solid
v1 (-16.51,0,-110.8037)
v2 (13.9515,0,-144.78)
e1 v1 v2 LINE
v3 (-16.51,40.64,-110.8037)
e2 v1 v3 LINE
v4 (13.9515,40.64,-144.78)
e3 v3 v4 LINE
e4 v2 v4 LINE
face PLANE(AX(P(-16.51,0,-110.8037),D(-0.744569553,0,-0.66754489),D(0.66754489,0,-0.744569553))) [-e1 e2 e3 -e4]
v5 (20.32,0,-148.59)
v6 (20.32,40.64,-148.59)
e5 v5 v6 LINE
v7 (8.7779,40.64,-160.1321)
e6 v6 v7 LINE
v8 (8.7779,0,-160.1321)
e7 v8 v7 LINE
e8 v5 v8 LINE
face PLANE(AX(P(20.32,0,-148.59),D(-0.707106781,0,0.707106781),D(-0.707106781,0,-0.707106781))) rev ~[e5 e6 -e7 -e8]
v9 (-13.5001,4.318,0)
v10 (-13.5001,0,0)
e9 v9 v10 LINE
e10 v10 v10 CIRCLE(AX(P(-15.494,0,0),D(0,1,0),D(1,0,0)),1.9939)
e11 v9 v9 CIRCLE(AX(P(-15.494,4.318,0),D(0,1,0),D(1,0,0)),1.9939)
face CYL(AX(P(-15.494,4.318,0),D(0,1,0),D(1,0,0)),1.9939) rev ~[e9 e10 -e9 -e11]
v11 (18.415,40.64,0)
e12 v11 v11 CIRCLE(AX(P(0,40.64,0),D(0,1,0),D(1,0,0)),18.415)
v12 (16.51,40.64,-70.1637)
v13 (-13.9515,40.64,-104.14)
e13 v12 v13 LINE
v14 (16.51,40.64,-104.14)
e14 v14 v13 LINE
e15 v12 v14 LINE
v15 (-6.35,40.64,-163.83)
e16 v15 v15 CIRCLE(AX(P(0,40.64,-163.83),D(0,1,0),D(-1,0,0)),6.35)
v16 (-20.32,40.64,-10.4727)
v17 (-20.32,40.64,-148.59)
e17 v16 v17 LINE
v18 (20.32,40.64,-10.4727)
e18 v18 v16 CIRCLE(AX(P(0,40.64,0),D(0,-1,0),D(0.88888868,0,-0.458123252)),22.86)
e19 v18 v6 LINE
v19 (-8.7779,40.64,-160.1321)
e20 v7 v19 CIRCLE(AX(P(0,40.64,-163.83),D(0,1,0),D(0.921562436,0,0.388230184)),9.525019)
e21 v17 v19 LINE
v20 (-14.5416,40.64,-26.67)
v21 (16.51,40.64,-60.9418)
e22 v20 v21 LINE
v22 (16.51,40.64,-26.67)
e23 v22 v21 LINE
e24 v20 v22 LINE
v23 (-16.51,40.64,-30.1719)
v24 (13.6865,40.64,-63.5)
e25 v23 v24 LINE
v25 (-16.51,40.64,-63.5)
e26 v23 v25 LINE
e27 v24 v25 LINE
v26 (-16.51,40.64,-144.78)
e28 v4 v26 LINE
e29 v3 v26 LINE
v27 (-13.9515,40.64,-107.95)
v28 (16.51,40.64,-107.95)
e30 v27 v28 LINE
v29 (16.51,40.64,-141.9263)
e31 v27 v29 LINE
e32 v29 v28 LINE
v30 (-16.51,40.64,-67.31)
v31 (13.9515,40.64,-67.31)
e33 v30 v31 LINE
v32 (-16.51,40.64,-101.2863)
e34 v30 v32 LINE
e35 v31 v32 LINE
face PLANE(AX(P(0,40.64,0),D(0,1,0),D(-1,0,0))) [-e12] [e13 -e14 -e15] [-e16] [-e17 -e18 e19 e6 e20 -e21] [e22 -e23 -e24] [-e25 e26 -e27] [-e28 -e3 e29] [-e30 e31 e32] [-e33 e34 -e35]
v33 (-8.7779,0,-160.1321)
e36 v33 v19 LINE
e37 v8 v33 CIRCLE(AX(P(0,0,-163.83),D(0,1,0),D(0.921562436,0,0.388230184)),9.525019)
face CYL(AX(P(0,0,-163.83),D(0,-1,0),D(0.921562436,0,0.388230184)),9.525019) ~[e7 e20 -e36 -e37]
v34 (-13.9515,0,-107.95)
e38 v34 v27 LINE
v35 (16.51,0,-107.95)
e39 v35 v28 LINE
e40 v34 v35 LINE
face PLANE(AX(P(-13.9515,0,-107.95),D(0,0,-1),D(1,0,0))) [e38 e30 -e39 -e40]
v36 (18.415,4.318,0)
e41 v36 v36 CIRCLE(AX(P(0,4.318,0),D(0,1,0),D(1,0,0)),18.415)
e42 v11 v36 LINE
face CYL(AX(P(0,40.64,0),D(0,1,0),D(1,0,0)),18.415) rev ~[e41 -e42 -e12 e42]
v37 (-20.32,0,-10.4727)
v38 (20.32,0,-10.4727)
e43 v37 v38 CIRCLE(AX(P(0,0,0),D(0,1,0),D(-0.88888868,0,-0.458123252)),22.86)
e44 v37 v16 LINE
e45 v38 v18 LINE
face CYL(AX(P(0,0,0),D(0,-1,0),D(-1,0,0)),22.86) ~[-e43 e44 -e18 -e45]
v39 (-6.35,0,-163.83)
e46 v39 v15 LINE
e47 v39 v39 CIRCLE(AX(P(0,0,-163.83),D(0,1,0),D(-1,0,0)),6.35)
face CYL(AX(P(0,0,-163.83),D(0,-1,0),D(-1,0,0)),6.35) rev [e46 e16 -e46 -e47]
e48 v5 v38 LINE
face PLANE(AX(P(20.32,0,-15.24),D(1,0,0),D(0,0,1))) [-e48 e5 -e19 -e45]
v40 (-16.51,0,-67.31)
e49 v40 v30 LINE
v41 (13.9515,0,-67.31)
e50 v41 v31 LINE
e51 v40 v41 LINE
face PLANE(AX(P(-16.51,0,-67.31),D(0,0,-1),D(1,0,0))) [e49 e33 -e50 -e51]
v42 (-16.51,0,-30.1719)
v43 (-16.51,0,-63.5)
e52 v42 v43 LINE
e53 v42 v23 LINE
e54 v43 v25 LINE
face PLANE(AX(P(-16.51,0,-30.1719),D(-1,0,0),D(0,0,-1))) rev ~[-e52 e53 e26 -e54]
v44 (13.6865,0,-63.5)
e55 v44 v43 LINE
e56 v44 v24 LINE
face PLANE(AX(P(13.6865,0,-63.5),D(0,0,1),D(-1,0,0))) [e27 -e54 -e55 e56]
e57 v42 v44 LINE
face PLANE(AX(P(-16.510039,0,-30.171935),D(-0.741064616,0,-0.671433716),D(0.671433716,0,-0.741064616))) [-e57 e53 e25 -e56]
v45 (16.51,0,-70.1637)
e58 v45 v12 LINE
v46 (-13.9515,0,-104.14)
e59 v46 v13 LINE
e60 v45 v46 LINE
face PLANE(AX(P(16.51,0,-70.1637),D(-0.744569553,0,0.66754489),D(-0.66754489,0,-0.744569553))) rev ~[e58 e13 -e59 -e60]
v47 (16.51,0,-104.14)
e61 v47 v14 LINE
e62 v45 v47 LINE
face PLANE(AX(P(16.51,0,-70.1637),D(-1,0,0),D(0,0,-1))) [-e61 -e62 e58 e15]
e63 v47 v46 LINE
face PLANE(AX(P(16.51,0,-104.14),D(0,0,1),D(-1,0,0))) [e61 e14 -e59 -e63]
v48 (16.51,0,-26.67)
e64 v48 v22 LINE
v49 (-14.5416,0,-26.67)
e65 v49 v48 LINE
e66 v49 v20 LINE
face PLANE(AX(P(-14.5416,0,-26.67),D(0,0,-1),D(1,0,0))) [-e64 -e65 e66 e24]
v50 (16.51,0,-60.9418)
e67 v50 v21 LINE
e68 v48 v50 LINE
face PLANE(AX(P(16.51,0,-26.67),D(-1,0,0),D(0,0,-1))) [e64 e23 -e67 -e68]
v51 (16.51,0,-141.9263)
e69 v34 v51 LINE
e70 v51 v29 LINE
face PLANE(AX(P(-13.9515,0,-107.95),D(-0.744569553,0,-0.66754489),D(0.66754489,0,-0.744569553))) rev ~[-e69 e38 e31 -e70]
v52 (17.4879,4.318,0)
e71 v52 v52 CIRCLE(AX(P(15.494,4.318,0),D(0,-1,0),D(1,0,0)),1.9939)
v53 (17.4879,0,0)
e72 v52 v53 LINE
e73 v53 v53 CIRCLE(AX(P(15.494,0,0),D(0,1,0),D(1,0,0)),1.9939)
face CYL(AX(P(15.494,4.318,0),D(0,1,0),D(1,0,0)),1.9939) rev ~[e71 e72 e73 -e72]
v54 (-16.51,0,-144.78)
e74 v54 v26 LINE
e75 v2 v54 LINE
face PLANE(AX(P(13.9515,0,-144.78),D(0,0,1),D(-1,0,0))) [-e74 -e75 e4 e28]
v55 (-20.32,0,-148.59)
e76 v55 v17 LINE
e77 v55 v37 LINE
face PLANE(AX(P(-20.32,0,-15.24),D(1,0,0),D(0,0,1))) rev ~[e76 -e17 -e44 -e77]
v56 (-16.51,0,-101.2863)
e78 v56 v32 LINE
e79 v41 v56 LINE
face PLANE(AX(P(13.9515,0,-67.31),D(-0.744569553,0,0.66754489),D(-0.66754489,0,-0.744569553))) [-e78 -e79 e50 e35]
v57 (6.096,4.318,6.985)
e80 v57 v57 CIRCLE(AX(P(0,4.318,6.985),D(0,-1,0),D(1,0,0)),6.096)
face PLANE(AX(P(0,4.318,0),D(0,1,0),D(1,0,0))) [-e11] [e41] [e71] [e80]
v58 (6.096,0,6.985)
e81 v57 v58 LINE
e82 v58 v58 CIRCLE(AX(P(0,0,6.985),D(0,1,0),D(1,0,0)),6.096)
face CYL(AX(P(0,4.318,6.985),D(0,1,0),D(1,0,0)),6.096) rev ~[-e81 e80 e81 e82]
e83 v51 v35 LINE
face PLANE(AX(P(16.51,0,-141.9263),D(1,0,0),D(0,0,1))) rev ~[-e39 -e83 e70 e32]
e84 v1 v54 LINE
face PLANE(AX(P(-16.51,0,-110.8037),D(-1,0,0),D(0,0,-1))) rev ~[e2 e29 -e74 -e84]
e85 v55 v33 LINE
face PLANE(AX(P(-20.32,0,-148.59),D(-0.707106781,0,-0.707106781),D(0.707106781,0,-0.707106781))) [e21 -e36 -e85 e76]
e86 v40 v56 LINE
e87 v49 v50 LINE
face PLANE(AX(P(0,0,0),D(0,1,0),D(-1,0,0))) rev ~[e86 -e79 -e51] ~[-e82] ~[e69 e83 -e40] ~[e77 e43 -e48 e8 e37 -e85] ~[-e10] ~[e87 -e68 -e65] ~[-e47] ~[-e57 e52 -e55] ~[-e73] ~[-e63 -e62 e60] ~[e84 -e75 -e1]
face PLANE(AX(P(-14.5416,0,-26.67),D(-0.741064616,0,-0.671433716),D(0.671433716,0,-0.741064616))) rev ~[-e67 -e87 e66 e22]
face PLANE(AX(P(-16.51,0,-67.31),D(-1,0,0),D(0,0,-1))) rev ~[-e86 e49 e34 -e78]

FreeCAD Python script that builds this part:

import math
import FreeCAD as App
import Part
import Sketcher
Q = App.Units.Quantity


def add_polygon(sketch, points):
    """Adds a closed chain of lines whose ends are joined by coincident constraints."""
    first, n = sketch.GeometryCount, len(points)
    for a, b in zip(points, points[1:] + points[:1]):
        sketch.addGeometry(Part.LineSegment(App.Vector(*a, 0), App.Vector(*b, 0)), False)
    for i in range(n):
        sketch.addConstraint(Sketcher.Constraint("Coincident", first + i, 2, first + (i + 1) % n, 1))

doc = App.newDocument("Part")
params = doc.addObject("Spreadsheet::Sheet", "Params")
for row, (alias, value) in enumerate([
    ("sketch1_diameter", "0.5 in"),
    ("sketch1_radius", "0.9 in"),
    ("sketch1_radius2", "0.375 in"),
    ("pad1_length", "1.6 in"),
    ("sketch2_diameter", "1.45 in"),
    ("pocket1_length", "1.43 in"),
    ("sketch3_diameter", "0.48 in"),
    ("sketch3_diameter2", "0.157 in"),
    ("pocket2_length", "1.43 in"),
], start=1):
    params.set(f"A{row}", alias)
    params.set(f"B{row}", "=" + value)
    params.setAlias(f"B{row}", alias)

body = doc.addObject("PartDesign::Body", "Body")

# Sketch on XZ plane
sketch1 = doc.addObject("Sketcher::SketchObject", "Sketch")
body.addObject(sketch1)
sketch1.AttachmentSupport = (doc.XZ_Plane, [""])
sketch1.MapMode = "FlatFace"
sketch1.addGeometry(Part.ArcOfCircle(Part.Circle(App.Vector(0, 0, 0), App.Vector(0, 0, 1), 23), math.radians(-27), math.radians(207)), False)  # 0
sketch1.addGeometry(Part.LineSegment(App.Vector(20, -10, 0), App.Vector(20, -149, 0)), False)  # 1
sketch1.addGeometry(Part.LineSegment(App.Vector(20, -149, 0), App.Vector(9, -160, 0)), False)  # 2
sketch1.addGeometry(Part.ArcOfCircle(Part.Circle(App.Vector(0, -164, 0), App.Vector(0, 0, 1), 10), math.radians(157), math.radians(383)), False)  # 3
sketch1.addGeometry(Part.LineSegment(App.Vector(-9, -160, 0), App.Vector(-20, -149, 0)), False)  # 4
sketch1.addGeometry(Part.LineSegment(App.Vector(-20, -149, 0), App.Vector(-20, -10, 0)), False)  # 5
add_polygon(sketch1, [(17, -108), (-14, -108), (17, -142)])  # lines 6-8
add_polygon(sketch1, [(17, -104), (17, -70), (-14, -104)])  # lines 9-11
sketch1.addGeometry(Part.Circle(App.Vector(0, -164, 0), App.Vector(0, 0, 1), 6), False)  # 12
add_polygon(sketch1, [(14, -145), (-17, -111), (-17, -145)])  # lines 13-15
add_polygon(sketch1, [(14, -67), (-17, -67), (-17, -101)])  # lines 16-18
add_polygon(sketch1, [(17, -27), (-15, -27), (17, -61)])  # lines 19-21
add_polygon(sketch1, [(-17, -64), (14, -64), (-17, -30)])  # lines 22-24
sketch1.addConstraint(Sketcher.Constraint("Coincident", 0, 1, 1, 1))
sketch1.addConstraint(Sketcher.Constraint("Coincident", 1, 2, 2, 1))
sketch1.addConstraint(Sketcher.Constraint("Coincident", 2, 2, 3, 2))
sketch1.addConstraint(Sketcher.Constraint("Coincident", 3, 1, 4, 1))
sketch1.addConstraint(Sketcher.Constraint("Coincident", 4, 2, 5, 1))
sketch1.addConstraint(Sketcher.Constraint("Coincident", 5, 2, 0, 2))
sketch1.addConstraint(Sketcher.Constraint("Vertical", 1))
sketch1.addConstraint(Sketcher.Constraint("Vertical", 5))
sketch1.addConstraint(Sketcher.Constraint("Horizontal", 6))
sketch1.addConstraint(Sketcher.Constraint("Vertical", 8))
sketch1.addConstraint(Sketcher.Constraint("Vertical", 9))
sketch1.addConstraint(Sketcher.Constraint("Horizontal", 11))
sketch1.addConstraint(Sketcher.Constraint("Vertical", 14))
sketch1.addConstraint(Sketcher.Constraint("Horizontal", 15))
sketch1.addConstraint(Sketcher.Constraint("Horizontal", 16))
sketch1.addConstraint(Sketcher.Constraint("Vertical", 17))
sketch1.addConstraint(Sketcher.Constraint("Horizontal", 19))
sketch1.addConstraint(Sketcher.Constraint("Vertical", 21))
sketch1.addConstraint(Sketcher.Constraint("Horizontal", 22))
sketch1.addConstraint(Sketcher.Constraint("Vertical", 24))
sketch1.addConstraint(Sketcher.Constraint("Coincident", 0, 3, -1, 1))
sketch1.addConstraint(Sketcher.Constraint("Coincident", 12, 3, 3, 3))
sketch1.addConstraint(Sketcher.Constraint("Symmetric", 2, 2, 3, 1, -2))
sketch1.addConstraint(Sketcher.Constraint("Symmetric", 1, 2, 4, 2, -2))
sketch1.addConstraint(Sketcher.Constraint("Perpendicular", 2, 4))
sketch1.addConstraint(Sketcher.Constraint("Parallel", 7, 13))
sketch1.addConstraint(Sketcher.Constraint("Parallel", 10, 18))
sketch1.addConstraint(Sketcher.Constraint("Parallel", 20, 23))
sketch1.addConstraint(Sketcher.Constraint("Vertical", 8, 2, 9, 2))
sketch1.addConstraint(Sketcher.Constraint("Vertical", 6, 2, 10, 2))
sketch1.addConstraint(Sketcher.Constraint("Vertical", 14, 2, 16, 2))
sketch1.addConstraint(Sketcher.Constraint("Vertical", 15, 2, 18, 2))
sketch1.addConstraint(Sketcher.Constraint("Vertical", 11, 2, 20, 2))
sketch1.addConstraint(Sketcher.Constraint("Vertical", 17, 2, 23, 2))
sketch1.addConstraint(Sketcher.Constraint("Equal", 11, 15))
sketch1.addConstraint(Sketcher.Constraint("Equal", 8, 9))
sketch1.addConstraint(Sketcher.Constraint("Diameter", 12, Q("0.5 in")))
sketch1.addConstraint(Sketcher.Constraint("Radius", 0, Q("0.9 in")))
sketch1.addConstraint(Sketcher.Constraint("Radius", 3, Q("0.375 in")))
sketch1.addConstraint(Sketcher.Constraint("DistanceX", -1, 1, 0, 1, Q("0.8 in")))
sketch1.addConstraint(Sketcher.Constraint("DistanceY", 4, 2, 6, 2, Q("1.6 in")))
sketch1.addConstraint(Sketcher.Constraint("DistanceY", 6, 2, 16, 2, Q("1.6 in")))
sketch1.addConstraint(Sketcher.Constraint("DistanceY", 16, 2, 19, 2, Q("1.6 in")))
sketch1.addConstraint(Sketcher.Constraint("DistanceY", 19, 2, -1, 1, Q("1.05 in")))
sketch1.addConstraint(Sketcher.Constraint("DistanceX", 7, 2, 1, 2, Q("0.15 in")))
sketch1.addConstraint(Sketcher.Constraint("DistanceY", 6, 2, 10, 2, Q("0.15 in")))
sketch1.addConstraint(Sketcher.Constraint("DistanceX", 4, 2, 13, 2, Q("0.15 in")))
sketch1.addConstraint(Sketcher.Constraint("DistanceY", 4, 2, 14, 2, Q("0.15 in")))
sketch1.addConstraint(Sketcher.Constraint("DistanceY", 3, 3, 14, 2, Q("0.75 in")))
sketch1.addConstraint(Sketcher.Constraint("DistanceY", 18, 2, 22, 2, Q("0.15 in")))
sketch1.addConstraint(Sketcher.Constraint("DistanceX", 19, 2, 19, 1, Q("1.2225 in")))
sketch1.addConstraint(Sketcher.Constraint("Distance", 23, Q("1.7706 in")))
sketch1.addConstraint(Sketcher.Constraint("DistanceX", 6, 2, 6, 1, Q("30.4615 mm")))
sketch1.addConstraint(Sketcher.Constraint("DistanceX", 22, 1, 22, 2, Q("30.1965 mm")))
sketch1.addConstraint(Sketcher.Constraint("DistanceY", 8, 1, 8, 2, Q("33.9763 mm")))
sketch1.setExpression("Constraints[54]", "Params.sketch1_diameter")
sketch1.setExpression("Constraints[55]", "Params.sketch1_radius")
sketch1.setExpression("Constraints[56]", "Params.sketch1_radius2")
pad1 = doc.addObject("PartDesign::Pad", "Pad")
body.addObject(pad1)
pad1.Profile = sketch1
pad1.setExpression("Length", "Params.pad1_length")
pad1.Reversed = True

# Sketch on XZ plane
sketch2 = doc.addObject("Sketcher::SketchObject", "Sketch001")
body.addObject(sketch2)
sketch2.AttachmentSupport = (doc.XZ_Plane, [""])
sketch2.MapMode = "FlatFace"
sketch2.AttachmentOffset = App.Placement(App.Vector(0, 0, -1.6 * 25.4), App.Rotation())
sketch2.addGeometry(Part.Circle(App.Vector(0, 0, 0), App.Vector(0, 0, 1), 18), False)
sketch2.addConstraint(Sketcher.Constraint("Coincident", 0, 3, -1, 1))
sketch2.addConstraint(Sketcher.Constraint("Diameter", 0, Q("1.45 in")))
sketch2.setExpression("Constraints[1]", "Params.sketch2_diameter")
pocket1 = doc.addObject("PartDesign::Pocket", "Pocket")
body.addObject(pocket1)
pocket1.Profile = sketch2
pocket1.setExpression("Length", "Params.pocket1_length")
pocket1.Reversed = True

# Sketch on XZ plane
sketch3 = doc.addObject("Sketcher::SketchObject", "Sketch002")
body.addObject(sketch3)
sketch3.AttachmentSupport = (doc.XZ_Plane, [""])
sketch3.MapMode = "FlatFace"
sketch3.AttachmentOffset = App.Placement(App.Vector(0, 0, -0.17 * 25.4), App.Rotation())
sketch3.addGeometry(Part.Circle(App.Vector(0, 7, 0), App.Vector(0, 0, 1), 6.1), False)
sketch3.addGeometry(Part.Circle(App.Vector(-15.5, 0, 0), App.Vector(0, 0, 1), 2), False)
sketch3.addGeometry(Part.Circle(App.Vector(15.5, 0, 0), App.Vector(0, 0, 1), 2), False)
sketch3.addConstraint(Sketcher.Constraint("Equal", 1, 2))
sketch3.addConstraint(Sketcher.Constraint("Symmetric", 1, 3, 2, 3, -1, 1))
sketch3.addConstraint(Sketcher.Constraint("PointOnObject", 0, 3, -2))
sketch3.addConstraint(Sketcher.Constraint("PointOnObject", 1, 3, -1))
sketch3.addConstraint(Sketcher.Constraint("Diameter", 0, Q("0.48 in")))
sketch3.addConstraint(Sketcher.Constraint("Diameter", 1, Q("0.157 in")))
sketch3.addConstraint(Sketcher.Constraint("DistanceX", 1, 3, -1, 1, Q("0.61 in")))
sketch3.addConstraint(Sketcher.Constraint("DistanceY", -1, 1, 0, 3, Q("0.275 in")))
sketch3.setExpression("Constraints[4]", "Params.sketch3_diameter")
sketch3.setExpression("Constraints[5]", "Params.sketch3_diameter2")
pocket2 = doc.addObject("PartDesign::Pocket", "Pocket001")
body.addObject(pocket2)
pocket2.Profile = sketch3
pocket2.setExpression("Length", "Params.pocket2_length")
pocket2.Reversed = True

doc.recompute()
